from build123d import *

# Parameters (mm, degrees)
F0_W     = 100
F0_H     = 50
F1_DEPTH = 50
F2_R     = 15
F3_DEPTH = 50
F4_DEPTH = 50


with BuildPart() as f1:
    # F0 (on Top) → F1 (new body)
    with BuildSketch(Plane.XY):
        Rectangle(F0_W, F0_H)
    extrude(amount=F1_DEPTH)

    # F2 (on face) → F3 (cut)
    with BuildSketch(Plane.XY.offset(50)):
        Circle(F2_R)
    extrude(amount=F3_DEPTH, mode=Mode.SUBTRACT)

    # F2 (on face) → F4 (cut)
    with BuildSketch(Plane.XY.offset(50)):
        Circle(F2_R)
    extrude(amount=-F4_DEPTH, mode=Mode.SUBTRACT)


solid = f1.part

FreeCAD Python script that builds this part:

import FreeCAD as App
import Part
import Sketcher

V = App.Vector
Q = App.Units.Quantity


def add_polygon(sketch, points):
    """Adds a closed chain of lines whose ends are joined by coincident constraints."""
    first, n = sketch.GeometryCount, len(points)
    for a, b in zip(points, points[1:] + points[:1]):
        sketch.addGeometry(Part.LineSegment(App.Vector(*a, 0), App.Vector(*b, 0)), False)
    for i in range(n):
        sketch.addConstraint(Sketcher.Constraint("Coincident", first + i, 2, first + (i + 1) % n, 1))

doc = App.newDocument("Part")
body = doc.addObject("PartDesign::Body", "Body")

# Sketch on XY plane
sketch1 = body.newObject("Sketcher::SketchObject", "Sketch")
sketch1.AttachmentSupport = (doc.getObject("XY_Plane"), [""])
sketch1.MapMode = "FlatFace"
add_polygon(sketch1, [(-50, 25), (-50, -25), (50, -25), (50, 25)])  # lines 0-3
sketch1.addConstraint([
    Sketcher.Constraint("Vertical", 0),
    Sketcher.Constraint("Horizontal", 1),
    Sketcher.Constraint("Vertical", 2),
    Sketcher.Constraint("Horizontal", 3),
    Sketcher.Constraint("Symmetric", 0, 2, 2, 2, -1, 1),
    Sketcher.Constraint("DistanceX", 1, 1, 1, 2, Q("100 mm")),
    Sketcher.Constraint("DistanceY", 0, 2, 0, 1, Q("50 mm")),
])
pad1 = body.newObject("PartDesign::Pad", "Pad")
pad1.Profile = sketch1
pad1.Length = 50

# Sketch on XY plane
sketch2 = body.newObject("Sketcher::SketchObject", "Sketch001")
sketch2.AttachmentSupport = (doc.getObject("XY_Plane"), [""])
sketch2.MapMode = "FlatFace"
sketch2.AttachmentOffset = App.Placement(V(0, 0, 50), App.Rotation())
sketch2.addGeometry(Part.Circle(V(0, 0, 0), V(0, 0, 1), 15), False)
sketch2.addConstraint([
    Sketcher.Constraint("Coincident", 0, 3, -1, 1),
    Sketcher.Constraint("Diameter", 0, Q("30 mm")),
])
pocket1 = body.newObject("PartDesign::Pocket", "Pocket")
pocket1.Profile = sketch2
pocket1.Length = 50
pocket1.Reversed = True

# Sketch on XY plane
sketch3 = body.newObject("Sketcher::SketchObject", "Sketch002")
sketch3.AttachmentSupport = (doc.getObject("XY_Plane"), [""])
sketch3.MapMode = "FlatFace"
sketch3.AttachmentOffset = App.Placement(V(0, 0, 50), App.Rotation())
sketch3.addGeometry(Part.Circle(V(0, 0, 0), V(0, 0, 1), 15), False)
sketch3.addConstraint([
    Sketcher.Constraint("Coincident", 0, 3, -1, 1),
    Sketcher.Constraint("Diameter", 0, Q("30 mm")),
])
pocket2 = body.newObject("PartDesign::Pocket", "Pocket001")
pocket2.Profile = sketch3
pocket2.Length = 50

doc.recompute()
